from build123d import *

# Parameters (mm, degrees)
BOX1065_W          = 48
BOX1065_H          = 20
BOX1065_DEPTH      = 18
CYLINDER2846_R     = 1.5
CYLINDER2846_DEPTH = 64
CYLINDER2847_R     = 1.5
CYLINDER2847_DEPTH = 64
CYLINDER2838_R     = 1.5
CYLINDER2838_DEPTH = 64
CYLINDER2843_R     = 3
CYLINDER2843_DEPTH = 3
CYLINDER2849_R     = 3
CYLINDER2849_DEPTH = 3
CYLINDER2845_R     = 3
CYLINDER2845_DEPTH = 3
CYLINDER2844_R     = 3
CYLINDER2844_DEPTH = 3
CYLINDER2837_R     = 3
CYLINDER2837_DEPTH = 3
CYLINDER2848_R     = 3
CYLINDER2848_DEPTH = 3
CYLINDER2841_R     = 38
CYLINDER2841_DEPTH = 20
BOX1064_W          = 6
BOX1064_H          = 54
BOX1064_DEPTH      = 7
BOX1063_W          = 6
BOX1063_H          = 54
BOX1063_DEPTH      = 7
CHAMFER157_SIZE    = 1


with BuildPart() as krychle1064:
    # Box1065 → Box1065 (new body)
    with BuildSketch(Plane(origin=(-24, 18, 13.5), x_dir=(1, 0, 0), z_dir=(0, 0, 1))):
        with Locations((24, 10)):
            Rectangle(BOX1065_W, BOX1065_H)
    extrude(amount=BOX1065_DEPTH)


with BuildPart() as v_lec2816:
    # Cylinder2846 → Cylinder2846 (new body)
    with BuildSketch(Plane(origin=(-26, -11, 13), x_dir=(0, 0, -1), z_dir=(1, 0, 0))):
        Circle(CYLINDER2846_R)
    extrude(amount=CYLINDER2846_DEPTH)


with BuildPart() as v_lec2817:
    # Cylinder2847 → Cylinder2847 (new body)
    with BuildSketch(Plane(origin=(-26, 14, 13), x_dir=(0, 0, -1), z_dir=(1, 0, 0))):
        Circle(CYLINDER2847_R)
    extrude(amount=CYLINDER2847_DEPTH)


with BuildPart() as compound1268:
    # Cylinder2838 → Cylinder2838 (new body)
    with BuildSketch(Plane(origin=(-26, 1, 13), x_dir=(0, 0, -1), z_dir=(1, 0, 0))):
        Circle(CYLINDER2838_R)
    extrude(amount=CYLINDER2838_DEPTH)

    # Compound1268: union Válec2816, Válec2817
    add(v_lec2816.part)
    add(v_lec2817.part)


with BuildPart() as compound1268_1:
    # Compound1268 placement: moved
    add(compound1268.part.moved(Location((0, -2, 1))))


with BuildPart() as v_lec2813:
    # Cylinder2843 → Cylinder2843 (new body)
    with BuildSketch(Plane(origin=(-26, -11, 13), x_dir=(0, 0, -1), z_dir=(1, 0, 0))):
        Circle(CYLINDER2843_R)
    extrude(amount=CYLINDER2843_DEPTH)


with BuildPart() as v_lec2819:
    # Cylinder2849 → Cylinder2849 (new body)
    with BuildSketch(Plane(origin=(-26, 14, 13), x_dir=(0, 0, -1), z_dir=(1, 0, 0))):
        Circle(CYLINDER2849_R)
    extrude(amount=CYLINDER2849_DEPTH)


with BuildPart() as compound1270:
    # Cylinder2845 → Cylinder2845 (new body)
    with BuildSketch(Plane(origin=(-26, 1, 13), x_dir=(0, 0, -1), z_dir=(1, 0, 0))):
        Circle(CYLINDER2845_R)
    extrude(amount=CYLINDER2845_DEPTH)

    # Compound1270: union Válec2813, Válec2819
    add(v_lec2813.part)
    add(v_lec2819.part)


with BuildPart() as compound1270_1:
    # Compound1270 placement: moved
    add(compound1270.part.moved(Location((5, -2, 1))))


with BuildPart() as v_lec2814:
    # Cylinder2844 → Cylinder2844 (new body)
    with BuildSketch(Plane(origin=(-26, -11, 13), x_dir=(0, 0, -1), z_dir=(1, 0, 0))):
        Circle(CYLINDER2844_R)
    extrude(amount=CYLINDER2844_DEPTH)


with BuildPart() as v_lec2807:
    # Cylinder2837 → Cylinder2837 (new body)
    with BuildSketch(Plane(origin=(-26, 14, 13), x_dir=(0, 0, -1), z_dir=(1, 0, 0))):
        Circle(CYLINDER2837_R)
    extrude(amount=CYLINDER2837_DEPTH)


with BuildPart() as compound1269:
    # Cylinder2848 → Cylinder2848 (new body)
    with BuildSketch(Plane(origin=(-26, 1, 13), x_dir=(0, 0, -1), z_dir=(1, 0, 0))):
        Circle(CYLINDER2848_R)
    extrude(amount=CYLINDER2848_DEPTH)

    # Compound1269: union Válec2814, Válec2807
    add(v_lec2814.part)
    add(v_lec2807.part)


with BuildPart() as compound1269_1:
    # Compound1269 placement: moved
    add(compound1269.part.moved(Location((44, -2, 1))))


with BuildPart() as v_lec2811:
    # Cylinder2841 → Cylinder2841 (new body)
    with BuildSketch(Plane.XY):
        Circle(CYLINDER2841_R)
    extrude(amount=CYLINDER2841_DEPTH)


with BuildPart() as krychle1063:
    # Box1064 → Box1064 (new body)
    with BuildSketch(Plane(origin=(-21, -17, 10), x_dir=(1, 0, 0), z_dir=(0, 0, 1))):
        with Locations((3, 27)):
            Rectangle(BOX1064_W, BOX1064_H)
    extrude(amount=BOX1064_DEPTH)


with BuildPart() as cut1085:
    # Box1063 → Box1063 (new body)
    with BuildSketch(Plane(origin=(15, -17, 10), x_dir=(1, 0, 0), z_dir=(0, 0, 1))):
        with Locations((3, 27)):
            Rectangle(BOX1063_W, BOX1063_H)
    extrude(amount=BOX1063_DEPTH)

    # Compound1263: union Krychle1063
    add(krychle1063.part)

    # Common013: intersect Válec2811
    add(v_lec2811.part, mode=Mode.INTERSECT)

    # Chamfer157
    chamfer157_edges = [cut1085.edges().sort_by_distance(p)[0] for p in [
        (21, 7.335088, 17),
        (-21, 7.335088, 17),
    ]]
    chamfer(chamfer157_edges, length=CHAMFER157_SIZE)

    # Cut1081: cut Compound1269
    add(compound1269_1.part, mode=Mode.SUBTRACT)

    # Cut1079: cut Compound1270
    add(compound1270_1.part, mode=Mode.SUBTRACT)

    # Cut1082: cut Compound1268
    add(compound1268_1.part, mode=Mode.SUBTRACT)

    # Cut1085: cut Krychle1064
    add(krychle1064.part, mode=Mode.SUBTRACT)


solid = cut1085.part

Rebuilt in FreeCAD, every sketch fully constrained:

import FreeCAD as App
import Part
import Sketcher

V = App.Vector


def edges_at(feature, points):
    """Names of the edges that pass closest to the given points."""
    edges = feature.Shape.Edges
    near = lambda p: min(range(len(edges)), key=lambda i: edges[i].distToShape(Part.Vertex(*p))[0])
    return sorted({f"Edge{near(p) + 1}" for p in points})

doc = App.newDocument("Part")
body = doc.addObject("PartDesign::Body", "Body")

# Sketch on XY plane
sketch1 = body.newObject("Sketcher::SketchObject", "Sketch")
sketch1.AttachmentSupport = (doc.getObject("XY_Plane"), [""])
sketch1.MapMode = "FlatFace"
sketch1.AttachmentOffset = App.Placement(V(0, 0, 13.5), App.Rotation())
sketch1.addGeometry(Part.LineSegment(V(-24, 38, 0), V(-24, 18, 0)), False)
sketch1.addGeometry(Part.LineSegment(V(-24, 18, 0), V(24, 18, 0)), False)
sketch1.addGeometry(Part.LineSegment(V(24, 18, 0), V(24, 38, 0)), False)
sketch1.addGeometry(Part.LineSegment(V(24, 38, 0), V(-24, 38, 0)), False)
sketch1.addConstraint(Sketcher.Constraint("Coincident", 0, 2, 1, 1))
sketch1.addConstraint(Sketcher.Constraint("Coincident", 1, 2, 2, 1))
sketch1.addConstraint(Sketcher.Constraint("Coincident", 2, 2, 3, 1))
sketch1.addConstraint(Sketcher.Constraint("Coincident", 3, 2, 0, 1))
sketch1.addConstraint(Sketcher.Constraint("Vertical", 0))
sketch1.addConstraint(Sketcher.Constraint("Horizontal", 1))
sketch1.addConstraint(Sketcher.Constraint("Vertical", 2))
sketch1.addConstraint(Sketcher.Constraint("Horizontal", 3))
sketch1.addConstraint(Sketcher.Constraint("DistanceX", 1, 1, 1, 2, 48.0))
sketch1.addConstraint(Sketcher.Constraint("DistanceY", 0, 2, 0, 1, 20.0))
sketch1.addConstraint(Sketcher.Constraint("DistanceX", 0, 2, -1, 1, 24.0))
sketch1.addConstraint(Sketcher.Constraint("DistanceY", -1, 1, 0, 2, 18.0))
pad1 = body.newObject("PartDesign::Pad", "Pad")
pad1.Profile = sketch1
pad1.Length = 18
body2 = doc.addObject("PartDesign::Body", "Body001")

# Sketch on YZ plane
sketch2 = body2.newObject("Sketcher::SketchObject", "Sketch001")
sketch2.AttachmentSupport = (doc.getObject("YZ_Plane001"), [""])
sketch2.MapMode = "FlatFace"
sketch2.AttachmentOffset = App.Placement(V(0, 0, -26), App.Rotation())
sketch2.addGeometry(Part.Circle(V(-11, 13, 0), V(0, 0, 1), 1.5), False)
sketch2.addConstraint(Sketcher.Constraint("Diameter", 0, 3.0))
sketch2.addConstraint(Sketcher.Constraint("DistanceX", 0, 3, -1, 1, 11.0))
sketch2.addConstraint(Sketcher.Constraint("DistanceY", -1, 1, 0, 3, 13.0))
pad2 = body2.newObject("PartDesign::Pad", "Pad001")
pad2.Profile = sketch2
pad2.Length = 64
body3 = doc.addObject("PartDesign::Body", "Body002")

# Sketch on YZ plane
sketch3 = body3.newObject("Sketcher::SketchObject", "Sketch002")
sketch3.AttachmentSupport = (doc.getObject("YZ_Plane002"), [""])
sketch3.MapMode = "FlatFace"
sketch3.AttachmentOffset = App.Placement(V(0, 0, -26), App.Rotation())
sketch3.addGeometry(Part.Circle(V(14, 13, 0), V(0, 0, 1), 1.5), False)
sketch3.addConstraint(Sketcher.Constraint("Diameter", 0, 3.0))
sketch3.addConstraint(Sketcher.Constraint("DistanceX", -1, 1, 0, 3, 14.0))
sketch3.addConstraint(Sketcher.Constraint("DistanceY", -1, 1, 0, 3, 13.0))
pad3 = body3.newObject("PartDesign::Pad", "Pad002")
pad3.Profile = sketch3
pad3.Length = 64
body4 = doc.addObject("PartDesign::Body", "Body003")
body4.AllowCompound = True

# Sketch on YZ plane
sketch4 = body4.newObject("Sketcher::SketchObject", "Sketch003")
sketch4.AttachmentSupport = (doc.getObject("YZ_Plane003"), [""])
sketch4.MapMode = "FlatFace"
sketch4.AttachmentOffset = App.Placement(V(0, 0, -26), App.Rotation())
sketch4.addGeometry(Part.Circle(V(1, 13, 0), V(0, 0, 1), 1.5), False)
sketch4.addConstraint(Sketcher.Constraint("Diameter", 0, 3.0))
sketch4.addConstraint(Sketcher.Constraint("DistanceX", -1, 1, 0, 3, 1.0))
sketch4.addConstraint(Sketcher.Constraint("DistanceY", -1, 1, 0, 3, 13.0))
pad4 = body4.newObject("PartDesign::Pad", "Pad003")
pad4.Profile = sketch4
pad4.Length = 64
doc.recompute()

boolean = body4.newObject("PartDesign::Boolean", "Boolean")
boolean.Type = "Fuse"
boolean.addObjects([body2])
doc.recompute()

boolean2 = body4.newObject("PartDesign::Boolean", "Boolean001")
boolean2.Type = "Fuse"
boolean2.addObjects([body3])
body5 = doc.addObject("PartDesign::Body", "Body004")
body5.AllowCompound = True
doc.recompute()

body4.Placement = App.Placement(V(0, -2, 1), App.Rotation(V(0, 0, 1), 0))
boolean3 = body5.newObject("PartDesign::Boolean", "Boolean002")
boolean3.Type = "Fuse"
boolean3.addObjects([body4])
body6 = doc.addObject("PartDesign::Body", "Body005")

# Sketch on YZ plane
sketch5 = body6.newObject("Sketcher::SketchObject", "Sketch004")
sketch5.AttachmentSupport = (doc.getObject("YZ_Plane005"), [""])
sketch5.MapMode = "FlatFace"
sketch5.AttachmentOffset = App.Placement(V(0, 0, -26), App.Rotation())
sketch5.addGeometry(Part.Circle(V(-11, 13, 0), V(0, 0, 1), 3), False)
sketch5.addConstraint(Sketcher.Constraint("Diameter", 0, 6.0))
sketch5.addConstraint(Sketcher.Constraint("DistanceX", 0, 3, -1, 1, 11.0))
sketch5.addConstraint(Sketcher.Constraint("DistanceY", -1, 1, 0, 3, 13.0))
pad5 = body6.newObject("PartDesign::Pad", "Pad004")
pad5.Profile = sketch5
pad5.Length = 3
body7 = doc.addObject("PartDesign::Body", "Body006")

# Sketch on YZ plane
sketch6 = body7.newObject("Sketcher::SketchObject", "Sketch005")
sketch6.AttachmentSupport = (doc.getObject("YZ_Plane006"), [""])
sketch6.MapMode = "FlatFace"
sketch6.AttachmentOffset = App.Placement(V(0, 0, -26), App.Rotation())
sketch6.addGeometry(Part.Circle(V(14, 13, 0), V(0, 0, 1), 3), False)
sketch6.addConstraint(Sketcher.Constraint("Diameter", 0, 6.0))
sketch6.addConstraint(Sketcher.Constraint("DistanceX", -1, 1, 0, 3, 14.0))
sketch6.addConstraint(Sketcher.Constraint("DistanceY", -1, 1, 0, 3, 13.0))
pad6 = body7.newObject("PartDesign::Pad", "Pad005")
pad6.Profile = sketch6
pad6.Length = 3
body8 = doc.addObject("PartDesign::Body", "Body007")
body8.AllowCompound = True

# Sketch on YZ plane
sketch7 = body8.newObject("Sketcher::SketchObject", "Sketch006")
sketch7.AttachmentSupport = (doc.getObject("YZ_Plane007"), [""])
sketch7.MapMode = "FlatFace"
sketch7.AttachmentOffset = App.Placement(V(0, 0, -26), App.Rotation())
sketch7.addGeometry(Part.Circle(V(1, 13, 0), V(0, 0, 1), 3), False)
sketch7.addConstraint(Sketcher.Constraint("Diameter", 0, 6.0))
sketch7.addConstraint(Sketcher.Constraint("DistanceX", -1, 1, 0, 3, 1.0))
sketch7.addConstraint(Sketcher.Constraint("DistanceY", -1, 1, 0, 3, 13.0))
pad7 = body8.newObject("PartDesign::Pad", "Pad006")
pad7.Profile = sketch7
pad7.Length = 3
doc.recompute()

boolean4 = body8.newObject("PartDesign::Boolean", "Boolean003")
boolean4.Type = "Fuse"
boolean4.addObjects([body6])
doc.recompute()

boolean5 = body8.newObject("PartDesign::Boolean", "Boolean004")
boolean5.Type = "Fuse"
boolean5.addObjects([body7])
body9 = doc.addObject("PartDesign::Body", "Body008")
body9.AllowCompound = True
doc.recompute()

body8.Placement = App.Placement(V(5, -2, 1), App.Rotation(V(0, 0, 1), 0))
boolean6 = body9.newObject("PartDesign::Boolean", "Boolean005")
boolean6.Type = "Fuse"
boolean6.addObjects([body8])
body10 = doc.addObject("PartDesign::Body", "Body009")

# Sketch on YZ plane
sketch8 = body10.newObject("Sketcher::SketchObject", "Sketch007")
sketch8.AttachmentSupport = (doc.getObject("YZ_Plane009"), [""])
sketch8.MapMode = "FlatFace"
sketch8.AttachmentOffset = App.Placement(V(0, 0, -26), App.Rotation())
sketch8.addGeometry(Part.Circle(V(-11, 13, 0), V(0, 0, 1), 3), False)
sketch8.addConstraint(Sketcher.Constraint("Diameter", 0, 6.0))
sketch8.addConstraint(Sketcher.Constraint("DistanceX", 0, 3, -1, 1, 11.0))
sketch8.addConstraint(Sketcher.Constraint("DistanceY", -1, 1, 0, 3, 13.0))
pad8 = body10.newObject("PartDesign::Pad", "Pad007")
pad8.Profile = sketch8
pad8.Length = 3
body11 = doc.addObject("PartDesign::Body", "Body010")

# Sketch on YZ plane
sketch9 = body11.newObject("Sketcher::SketchObject", "Sketch008")
sketch9.AttachmentSupport = (doc.getObject("YZ_Plane010"), [""])
sketch9.MapMode = "FlatFace"
sketch9.AttachmentOffset = App.Placement(V(0, 0, -26), App.Rotation())
sketch9.addGeometry(Part.Circle(V(14, 13, 0), V(0, 0, 1), 3), False)
sketch9.addConstraint(Sketcher.Constraint("Diameter", 0, 6.0))
sketch9.addConstraint(Sketcher.Constraint("DistanceX", -1, 1, 0, 3, 14.0))
sketch9.addConstraint(Sketcher.Constraint("DistanceY", -1, 1, 0, 3, 13.0))
pad9 = body11.newObject("PartDesign::Pad", "Pad008")
pad9.Profile = sketch9
pad9.Length = 3
body12 = doc.addObject("PartDesign::Body", "Body011")
body12.AllowCompound = True

# Sketch on YZ plane
sketch10 = body12.newObject("Sketcher::SketchObject", "Sketch009")
sketch10.AttachmentSupport = (doc.getObject("YZ_Plane011"), [""])
sketch10.MapMode = "FlatFace"
sketch10.AttachmentOffset = App.Placement(V(0, 0, -26), App.Rotation())
sketch10.addGeometry(Part.Circle(V(1, 13, 0), V(0, 0, 1), 3), False)
sketch10.addConstraint(Sketcher.Constraint("Diameter", 0, 6.0))
sketch10.addConstraint(Sketcher.Constraint("DistanceX", -1, 1, 0, 3, 1.0))
sketch10.addConstraint(Sketcher.Constraint("DistanceY", -1, 1, 0, 3, 13.0))
pad10 = body12.newObject("PartDesign::Pad", "Pad009")
pad10.Profile = sketch10
pad10.Length = 3
doc.recompute()

boolean7 = body12.newObject("PartDesign::Boolean", "Boolean006")
boolean7.Type = "Fuse"
boolean7.addObjects([body10])
doc.recompute()

boolean8 = body12.newObject("PartDesign::Boolean", "Boolean007")
boolean8.Type = "Fuse"
boolean8.addObjects([body11])
body13 = doc.addObject("PartDesign::Body", "Body012")
body13.AllowCompound = True
doc.recompute()

body12.Placement = App.Placement(V(44, -2, 1), App.Rotation(V(0, 0, 1), 0))
boolean9 = body13.newObject("PartDesign::Boolean", "Boolean008")
boolean9.Type = "Fuse"
boolean9.addObjects([body12])
body14 = doc.addObject("PartDesign::Body", "Body013")

# Sketch on XY plane
sketch11 = body14.newObject("Sketcher::SketchObject", "Sketch010")
sketch11.AttachmentSupport = (doc.getObject("XY_Plane013"), [""])
sketch11.MapMode = "FlatFace"
sketch11.addGeometry(Part.Circle(V(0, 0, 0), V(0, 0, 1), 38), False)
sketch11.addConstraint(Sketcher.Constraint("Coincident", 0, 3, -1, 1))
sketch11.addConstraint(Sketcher.Constraint("Diameter", 0, 76.0))
pad11 = body14.newObject("PartDesign::Pad", "Pad010")
pad11.Profile = sketch11
pad11.Length = 20
body15 = doc.addObject("PartDesign::Body", "Body014")

# Sketch on XY plane
sketch12 = body15.newObject("Sketcher::SketchObject", "Sketch011")
sketch12.AttachmentSupport = (doc.getObject("XY_Plane014"), [""])
sketch12.MapMode = "FlatFace"
sketch12.AttachmentOffset = App.Placement(V(0, 0, 10), App.Rotation())
sketch12.addGeometry(Part.LineSegment(V(-21, 37, 0), V(-21, -17, 0)), False)
sketch12.addGeometry(Part.LineSegment(V(-21, -17, 0), V(-15, -17, 0)), False)
sketch12.addGeometry(Part.LineSegment(V(-15, -17, 0), V(-15, 37, 0)), False)
sketch12.addGeometry(Part.LineSegment(V(-15, 37, 0), V(-21, 37, 0)), False)
sketch12.addConstraint(Sketcher.Constraint("Coincident", 0, 2, 1, 1))
sketch12.addConstraint(Sketcher.Constraint("Coincident", 1, 2, 2, 1))
sketch12.addConstraint(Sketcher.Constraint("Coincident", 2, 2, 3, 1))
sketch12.addConstraint(Sketcher.Constraint("Coincident", 3, 2, 0, 1))
sketch12.addConstraint(Sketcher.Constraint("Vertical", 0))
sketch12.addConstraint(Sketcher.Constraint("Horizontal", 1))
sketch12.addConstraint(Sketcher.Constraint("Vertical", 2))
sketch12.addConstraint(Sketcher.Constraint("Horizontal", 3))
sketch12.addConstraint(Sketcher.Constraint("DistanceX", 1, 1, 1, 2, 6.0))
sketch12.addConstraint(Sketcher.Constraint("DistanceY", 0, 2, 0, 1, 54.0))
sketch12.addConstraint(Sketcher.Constraint("DistanceX", 0, 2, -1, 1, 21.0))
sketch12.addConstraint(Sketcher.Constraint("DistanceY", 0, 2, -1, 1, 17.0))
pad12 = body15.newObject("PartDesign::Pad", "Pad011")
pad12.Profile = sketch12
pad12.Length = 7
body16 = doc.addObject("PartDesign::Body", "Body015")
body16.AllowCompound = True

# Sketch on XY plane
sketch13 = body16.newObject("Sketcher::SketchObject", "Sketch012")
sketch13.AttachmentSupport = (doc.getObject("XY_Plane015"), [""])
sketch13.MapMode = "FlatFace"
sketch13.AttachmentOffset = App.Placement(V(0, 0, 10), App.Rotation())
sketch13.addGeometry(Part.LineSegment(V(15, 37, 0), V(15, -17, 0)), False)
sketch13.addGeometry(Part.LineSegment(V(15, -17, 0), V(21, -17, 0)), False)
sketch13.addGeometry(Part.LineSegment(V(21, -17, 0), V(21, 37, 0)), False)
sketch13.addGeometry(Part.LineSegment(V(21, 37, 0), V(15, 37, 0)), False)
sketch13.addConstraint(Sketcher.Constraint("Coincident", 0, 2, 1, 1))
sketch13.addConstraint(Sketcher.Constraint("Coincident", 1, 2, 2, 1))
sketch13.addConstraint(Sketcher.Constraint("Coincident", 2, 2, 3, 1))
sketch13.addConstraint(Sketcher.Constraint("Coincident", 3, 2, 0, 1))
sketch13.addConstraint(Sketcher.Constraint("Vertical", 0))
sketch13.addConstraint(Sketcher.Constraint("Horizontal", 1))
sketch13.addConstraint(Sketcher.Constraint("Vertical", 2))
sketch13.addConstraint(Sketcher.Constraint("Horizontal", 3))
sketch13.addConstraint(Sketcher.Constraint("DistanceX", 1, 1, 1, 2, 6.0))
sketch13.addConstraint(Sketcher.Constraint("DistanceY", 0, 2, 0, 1, 54.0))
sketch13.addConstraint(Sketcher.Constraint("DistanceX", -1, 1, 0, 2, 15.0))
sketch13.addConstraint(Sketcher.Constraint("DistanceY", 0, 2, -1, 1, 17.0))
pad13 = body16.newObject("PartDesign::Pad", "Pad012")
pad13.Profile = sketch13
pad13.Length = 7
doc.recompute()

boolean10 = body16.newObject("PartDesign::Boolean", "Boolean009")
boolean10.Type = "Fuse"
boolean10.addObjects([body15])
doc.recompute()

boolean11 = body16.newObject("PartDesign::Boolean", "Boolean010")
boolean11.Type = "Common"
boolean11.addObjects([body14])
doc.recompute()

chamfer = body16.newObject("PartDesign::Chamfer", "Chamfer")
chamfer.Base = (boolean11, edges_at(boolean11, [(21, 7.335, 17), (-21, 7.335, 17)]))
chamfer.Size = 1
doc.recompute()

boolean12 = body16.newObject("PartDesign::Boolean", "Boolean011")
boolean12.Type = "Cut"
boolean12.addObjects([body13])
doc.recompute()

boolean13 = body16.newObject("PartDesign::Boolean", "Boolean012")
boolean13.Type = "Cut"
boolean13.addObjects([body9])
doc.recompute()

boolean14 = body16.newObject("PartDesign::Boolean", "Boolean013")
boolean14.Type = "Cut"
boolean14.addObjects([body5])
doc.recompute()

boolean15 = body16.newObject("PartDesign::Boolean", "Boolean014")
boolean15.Type = "Cut"
boolean15.addObjects([body])

doc.recompute()
